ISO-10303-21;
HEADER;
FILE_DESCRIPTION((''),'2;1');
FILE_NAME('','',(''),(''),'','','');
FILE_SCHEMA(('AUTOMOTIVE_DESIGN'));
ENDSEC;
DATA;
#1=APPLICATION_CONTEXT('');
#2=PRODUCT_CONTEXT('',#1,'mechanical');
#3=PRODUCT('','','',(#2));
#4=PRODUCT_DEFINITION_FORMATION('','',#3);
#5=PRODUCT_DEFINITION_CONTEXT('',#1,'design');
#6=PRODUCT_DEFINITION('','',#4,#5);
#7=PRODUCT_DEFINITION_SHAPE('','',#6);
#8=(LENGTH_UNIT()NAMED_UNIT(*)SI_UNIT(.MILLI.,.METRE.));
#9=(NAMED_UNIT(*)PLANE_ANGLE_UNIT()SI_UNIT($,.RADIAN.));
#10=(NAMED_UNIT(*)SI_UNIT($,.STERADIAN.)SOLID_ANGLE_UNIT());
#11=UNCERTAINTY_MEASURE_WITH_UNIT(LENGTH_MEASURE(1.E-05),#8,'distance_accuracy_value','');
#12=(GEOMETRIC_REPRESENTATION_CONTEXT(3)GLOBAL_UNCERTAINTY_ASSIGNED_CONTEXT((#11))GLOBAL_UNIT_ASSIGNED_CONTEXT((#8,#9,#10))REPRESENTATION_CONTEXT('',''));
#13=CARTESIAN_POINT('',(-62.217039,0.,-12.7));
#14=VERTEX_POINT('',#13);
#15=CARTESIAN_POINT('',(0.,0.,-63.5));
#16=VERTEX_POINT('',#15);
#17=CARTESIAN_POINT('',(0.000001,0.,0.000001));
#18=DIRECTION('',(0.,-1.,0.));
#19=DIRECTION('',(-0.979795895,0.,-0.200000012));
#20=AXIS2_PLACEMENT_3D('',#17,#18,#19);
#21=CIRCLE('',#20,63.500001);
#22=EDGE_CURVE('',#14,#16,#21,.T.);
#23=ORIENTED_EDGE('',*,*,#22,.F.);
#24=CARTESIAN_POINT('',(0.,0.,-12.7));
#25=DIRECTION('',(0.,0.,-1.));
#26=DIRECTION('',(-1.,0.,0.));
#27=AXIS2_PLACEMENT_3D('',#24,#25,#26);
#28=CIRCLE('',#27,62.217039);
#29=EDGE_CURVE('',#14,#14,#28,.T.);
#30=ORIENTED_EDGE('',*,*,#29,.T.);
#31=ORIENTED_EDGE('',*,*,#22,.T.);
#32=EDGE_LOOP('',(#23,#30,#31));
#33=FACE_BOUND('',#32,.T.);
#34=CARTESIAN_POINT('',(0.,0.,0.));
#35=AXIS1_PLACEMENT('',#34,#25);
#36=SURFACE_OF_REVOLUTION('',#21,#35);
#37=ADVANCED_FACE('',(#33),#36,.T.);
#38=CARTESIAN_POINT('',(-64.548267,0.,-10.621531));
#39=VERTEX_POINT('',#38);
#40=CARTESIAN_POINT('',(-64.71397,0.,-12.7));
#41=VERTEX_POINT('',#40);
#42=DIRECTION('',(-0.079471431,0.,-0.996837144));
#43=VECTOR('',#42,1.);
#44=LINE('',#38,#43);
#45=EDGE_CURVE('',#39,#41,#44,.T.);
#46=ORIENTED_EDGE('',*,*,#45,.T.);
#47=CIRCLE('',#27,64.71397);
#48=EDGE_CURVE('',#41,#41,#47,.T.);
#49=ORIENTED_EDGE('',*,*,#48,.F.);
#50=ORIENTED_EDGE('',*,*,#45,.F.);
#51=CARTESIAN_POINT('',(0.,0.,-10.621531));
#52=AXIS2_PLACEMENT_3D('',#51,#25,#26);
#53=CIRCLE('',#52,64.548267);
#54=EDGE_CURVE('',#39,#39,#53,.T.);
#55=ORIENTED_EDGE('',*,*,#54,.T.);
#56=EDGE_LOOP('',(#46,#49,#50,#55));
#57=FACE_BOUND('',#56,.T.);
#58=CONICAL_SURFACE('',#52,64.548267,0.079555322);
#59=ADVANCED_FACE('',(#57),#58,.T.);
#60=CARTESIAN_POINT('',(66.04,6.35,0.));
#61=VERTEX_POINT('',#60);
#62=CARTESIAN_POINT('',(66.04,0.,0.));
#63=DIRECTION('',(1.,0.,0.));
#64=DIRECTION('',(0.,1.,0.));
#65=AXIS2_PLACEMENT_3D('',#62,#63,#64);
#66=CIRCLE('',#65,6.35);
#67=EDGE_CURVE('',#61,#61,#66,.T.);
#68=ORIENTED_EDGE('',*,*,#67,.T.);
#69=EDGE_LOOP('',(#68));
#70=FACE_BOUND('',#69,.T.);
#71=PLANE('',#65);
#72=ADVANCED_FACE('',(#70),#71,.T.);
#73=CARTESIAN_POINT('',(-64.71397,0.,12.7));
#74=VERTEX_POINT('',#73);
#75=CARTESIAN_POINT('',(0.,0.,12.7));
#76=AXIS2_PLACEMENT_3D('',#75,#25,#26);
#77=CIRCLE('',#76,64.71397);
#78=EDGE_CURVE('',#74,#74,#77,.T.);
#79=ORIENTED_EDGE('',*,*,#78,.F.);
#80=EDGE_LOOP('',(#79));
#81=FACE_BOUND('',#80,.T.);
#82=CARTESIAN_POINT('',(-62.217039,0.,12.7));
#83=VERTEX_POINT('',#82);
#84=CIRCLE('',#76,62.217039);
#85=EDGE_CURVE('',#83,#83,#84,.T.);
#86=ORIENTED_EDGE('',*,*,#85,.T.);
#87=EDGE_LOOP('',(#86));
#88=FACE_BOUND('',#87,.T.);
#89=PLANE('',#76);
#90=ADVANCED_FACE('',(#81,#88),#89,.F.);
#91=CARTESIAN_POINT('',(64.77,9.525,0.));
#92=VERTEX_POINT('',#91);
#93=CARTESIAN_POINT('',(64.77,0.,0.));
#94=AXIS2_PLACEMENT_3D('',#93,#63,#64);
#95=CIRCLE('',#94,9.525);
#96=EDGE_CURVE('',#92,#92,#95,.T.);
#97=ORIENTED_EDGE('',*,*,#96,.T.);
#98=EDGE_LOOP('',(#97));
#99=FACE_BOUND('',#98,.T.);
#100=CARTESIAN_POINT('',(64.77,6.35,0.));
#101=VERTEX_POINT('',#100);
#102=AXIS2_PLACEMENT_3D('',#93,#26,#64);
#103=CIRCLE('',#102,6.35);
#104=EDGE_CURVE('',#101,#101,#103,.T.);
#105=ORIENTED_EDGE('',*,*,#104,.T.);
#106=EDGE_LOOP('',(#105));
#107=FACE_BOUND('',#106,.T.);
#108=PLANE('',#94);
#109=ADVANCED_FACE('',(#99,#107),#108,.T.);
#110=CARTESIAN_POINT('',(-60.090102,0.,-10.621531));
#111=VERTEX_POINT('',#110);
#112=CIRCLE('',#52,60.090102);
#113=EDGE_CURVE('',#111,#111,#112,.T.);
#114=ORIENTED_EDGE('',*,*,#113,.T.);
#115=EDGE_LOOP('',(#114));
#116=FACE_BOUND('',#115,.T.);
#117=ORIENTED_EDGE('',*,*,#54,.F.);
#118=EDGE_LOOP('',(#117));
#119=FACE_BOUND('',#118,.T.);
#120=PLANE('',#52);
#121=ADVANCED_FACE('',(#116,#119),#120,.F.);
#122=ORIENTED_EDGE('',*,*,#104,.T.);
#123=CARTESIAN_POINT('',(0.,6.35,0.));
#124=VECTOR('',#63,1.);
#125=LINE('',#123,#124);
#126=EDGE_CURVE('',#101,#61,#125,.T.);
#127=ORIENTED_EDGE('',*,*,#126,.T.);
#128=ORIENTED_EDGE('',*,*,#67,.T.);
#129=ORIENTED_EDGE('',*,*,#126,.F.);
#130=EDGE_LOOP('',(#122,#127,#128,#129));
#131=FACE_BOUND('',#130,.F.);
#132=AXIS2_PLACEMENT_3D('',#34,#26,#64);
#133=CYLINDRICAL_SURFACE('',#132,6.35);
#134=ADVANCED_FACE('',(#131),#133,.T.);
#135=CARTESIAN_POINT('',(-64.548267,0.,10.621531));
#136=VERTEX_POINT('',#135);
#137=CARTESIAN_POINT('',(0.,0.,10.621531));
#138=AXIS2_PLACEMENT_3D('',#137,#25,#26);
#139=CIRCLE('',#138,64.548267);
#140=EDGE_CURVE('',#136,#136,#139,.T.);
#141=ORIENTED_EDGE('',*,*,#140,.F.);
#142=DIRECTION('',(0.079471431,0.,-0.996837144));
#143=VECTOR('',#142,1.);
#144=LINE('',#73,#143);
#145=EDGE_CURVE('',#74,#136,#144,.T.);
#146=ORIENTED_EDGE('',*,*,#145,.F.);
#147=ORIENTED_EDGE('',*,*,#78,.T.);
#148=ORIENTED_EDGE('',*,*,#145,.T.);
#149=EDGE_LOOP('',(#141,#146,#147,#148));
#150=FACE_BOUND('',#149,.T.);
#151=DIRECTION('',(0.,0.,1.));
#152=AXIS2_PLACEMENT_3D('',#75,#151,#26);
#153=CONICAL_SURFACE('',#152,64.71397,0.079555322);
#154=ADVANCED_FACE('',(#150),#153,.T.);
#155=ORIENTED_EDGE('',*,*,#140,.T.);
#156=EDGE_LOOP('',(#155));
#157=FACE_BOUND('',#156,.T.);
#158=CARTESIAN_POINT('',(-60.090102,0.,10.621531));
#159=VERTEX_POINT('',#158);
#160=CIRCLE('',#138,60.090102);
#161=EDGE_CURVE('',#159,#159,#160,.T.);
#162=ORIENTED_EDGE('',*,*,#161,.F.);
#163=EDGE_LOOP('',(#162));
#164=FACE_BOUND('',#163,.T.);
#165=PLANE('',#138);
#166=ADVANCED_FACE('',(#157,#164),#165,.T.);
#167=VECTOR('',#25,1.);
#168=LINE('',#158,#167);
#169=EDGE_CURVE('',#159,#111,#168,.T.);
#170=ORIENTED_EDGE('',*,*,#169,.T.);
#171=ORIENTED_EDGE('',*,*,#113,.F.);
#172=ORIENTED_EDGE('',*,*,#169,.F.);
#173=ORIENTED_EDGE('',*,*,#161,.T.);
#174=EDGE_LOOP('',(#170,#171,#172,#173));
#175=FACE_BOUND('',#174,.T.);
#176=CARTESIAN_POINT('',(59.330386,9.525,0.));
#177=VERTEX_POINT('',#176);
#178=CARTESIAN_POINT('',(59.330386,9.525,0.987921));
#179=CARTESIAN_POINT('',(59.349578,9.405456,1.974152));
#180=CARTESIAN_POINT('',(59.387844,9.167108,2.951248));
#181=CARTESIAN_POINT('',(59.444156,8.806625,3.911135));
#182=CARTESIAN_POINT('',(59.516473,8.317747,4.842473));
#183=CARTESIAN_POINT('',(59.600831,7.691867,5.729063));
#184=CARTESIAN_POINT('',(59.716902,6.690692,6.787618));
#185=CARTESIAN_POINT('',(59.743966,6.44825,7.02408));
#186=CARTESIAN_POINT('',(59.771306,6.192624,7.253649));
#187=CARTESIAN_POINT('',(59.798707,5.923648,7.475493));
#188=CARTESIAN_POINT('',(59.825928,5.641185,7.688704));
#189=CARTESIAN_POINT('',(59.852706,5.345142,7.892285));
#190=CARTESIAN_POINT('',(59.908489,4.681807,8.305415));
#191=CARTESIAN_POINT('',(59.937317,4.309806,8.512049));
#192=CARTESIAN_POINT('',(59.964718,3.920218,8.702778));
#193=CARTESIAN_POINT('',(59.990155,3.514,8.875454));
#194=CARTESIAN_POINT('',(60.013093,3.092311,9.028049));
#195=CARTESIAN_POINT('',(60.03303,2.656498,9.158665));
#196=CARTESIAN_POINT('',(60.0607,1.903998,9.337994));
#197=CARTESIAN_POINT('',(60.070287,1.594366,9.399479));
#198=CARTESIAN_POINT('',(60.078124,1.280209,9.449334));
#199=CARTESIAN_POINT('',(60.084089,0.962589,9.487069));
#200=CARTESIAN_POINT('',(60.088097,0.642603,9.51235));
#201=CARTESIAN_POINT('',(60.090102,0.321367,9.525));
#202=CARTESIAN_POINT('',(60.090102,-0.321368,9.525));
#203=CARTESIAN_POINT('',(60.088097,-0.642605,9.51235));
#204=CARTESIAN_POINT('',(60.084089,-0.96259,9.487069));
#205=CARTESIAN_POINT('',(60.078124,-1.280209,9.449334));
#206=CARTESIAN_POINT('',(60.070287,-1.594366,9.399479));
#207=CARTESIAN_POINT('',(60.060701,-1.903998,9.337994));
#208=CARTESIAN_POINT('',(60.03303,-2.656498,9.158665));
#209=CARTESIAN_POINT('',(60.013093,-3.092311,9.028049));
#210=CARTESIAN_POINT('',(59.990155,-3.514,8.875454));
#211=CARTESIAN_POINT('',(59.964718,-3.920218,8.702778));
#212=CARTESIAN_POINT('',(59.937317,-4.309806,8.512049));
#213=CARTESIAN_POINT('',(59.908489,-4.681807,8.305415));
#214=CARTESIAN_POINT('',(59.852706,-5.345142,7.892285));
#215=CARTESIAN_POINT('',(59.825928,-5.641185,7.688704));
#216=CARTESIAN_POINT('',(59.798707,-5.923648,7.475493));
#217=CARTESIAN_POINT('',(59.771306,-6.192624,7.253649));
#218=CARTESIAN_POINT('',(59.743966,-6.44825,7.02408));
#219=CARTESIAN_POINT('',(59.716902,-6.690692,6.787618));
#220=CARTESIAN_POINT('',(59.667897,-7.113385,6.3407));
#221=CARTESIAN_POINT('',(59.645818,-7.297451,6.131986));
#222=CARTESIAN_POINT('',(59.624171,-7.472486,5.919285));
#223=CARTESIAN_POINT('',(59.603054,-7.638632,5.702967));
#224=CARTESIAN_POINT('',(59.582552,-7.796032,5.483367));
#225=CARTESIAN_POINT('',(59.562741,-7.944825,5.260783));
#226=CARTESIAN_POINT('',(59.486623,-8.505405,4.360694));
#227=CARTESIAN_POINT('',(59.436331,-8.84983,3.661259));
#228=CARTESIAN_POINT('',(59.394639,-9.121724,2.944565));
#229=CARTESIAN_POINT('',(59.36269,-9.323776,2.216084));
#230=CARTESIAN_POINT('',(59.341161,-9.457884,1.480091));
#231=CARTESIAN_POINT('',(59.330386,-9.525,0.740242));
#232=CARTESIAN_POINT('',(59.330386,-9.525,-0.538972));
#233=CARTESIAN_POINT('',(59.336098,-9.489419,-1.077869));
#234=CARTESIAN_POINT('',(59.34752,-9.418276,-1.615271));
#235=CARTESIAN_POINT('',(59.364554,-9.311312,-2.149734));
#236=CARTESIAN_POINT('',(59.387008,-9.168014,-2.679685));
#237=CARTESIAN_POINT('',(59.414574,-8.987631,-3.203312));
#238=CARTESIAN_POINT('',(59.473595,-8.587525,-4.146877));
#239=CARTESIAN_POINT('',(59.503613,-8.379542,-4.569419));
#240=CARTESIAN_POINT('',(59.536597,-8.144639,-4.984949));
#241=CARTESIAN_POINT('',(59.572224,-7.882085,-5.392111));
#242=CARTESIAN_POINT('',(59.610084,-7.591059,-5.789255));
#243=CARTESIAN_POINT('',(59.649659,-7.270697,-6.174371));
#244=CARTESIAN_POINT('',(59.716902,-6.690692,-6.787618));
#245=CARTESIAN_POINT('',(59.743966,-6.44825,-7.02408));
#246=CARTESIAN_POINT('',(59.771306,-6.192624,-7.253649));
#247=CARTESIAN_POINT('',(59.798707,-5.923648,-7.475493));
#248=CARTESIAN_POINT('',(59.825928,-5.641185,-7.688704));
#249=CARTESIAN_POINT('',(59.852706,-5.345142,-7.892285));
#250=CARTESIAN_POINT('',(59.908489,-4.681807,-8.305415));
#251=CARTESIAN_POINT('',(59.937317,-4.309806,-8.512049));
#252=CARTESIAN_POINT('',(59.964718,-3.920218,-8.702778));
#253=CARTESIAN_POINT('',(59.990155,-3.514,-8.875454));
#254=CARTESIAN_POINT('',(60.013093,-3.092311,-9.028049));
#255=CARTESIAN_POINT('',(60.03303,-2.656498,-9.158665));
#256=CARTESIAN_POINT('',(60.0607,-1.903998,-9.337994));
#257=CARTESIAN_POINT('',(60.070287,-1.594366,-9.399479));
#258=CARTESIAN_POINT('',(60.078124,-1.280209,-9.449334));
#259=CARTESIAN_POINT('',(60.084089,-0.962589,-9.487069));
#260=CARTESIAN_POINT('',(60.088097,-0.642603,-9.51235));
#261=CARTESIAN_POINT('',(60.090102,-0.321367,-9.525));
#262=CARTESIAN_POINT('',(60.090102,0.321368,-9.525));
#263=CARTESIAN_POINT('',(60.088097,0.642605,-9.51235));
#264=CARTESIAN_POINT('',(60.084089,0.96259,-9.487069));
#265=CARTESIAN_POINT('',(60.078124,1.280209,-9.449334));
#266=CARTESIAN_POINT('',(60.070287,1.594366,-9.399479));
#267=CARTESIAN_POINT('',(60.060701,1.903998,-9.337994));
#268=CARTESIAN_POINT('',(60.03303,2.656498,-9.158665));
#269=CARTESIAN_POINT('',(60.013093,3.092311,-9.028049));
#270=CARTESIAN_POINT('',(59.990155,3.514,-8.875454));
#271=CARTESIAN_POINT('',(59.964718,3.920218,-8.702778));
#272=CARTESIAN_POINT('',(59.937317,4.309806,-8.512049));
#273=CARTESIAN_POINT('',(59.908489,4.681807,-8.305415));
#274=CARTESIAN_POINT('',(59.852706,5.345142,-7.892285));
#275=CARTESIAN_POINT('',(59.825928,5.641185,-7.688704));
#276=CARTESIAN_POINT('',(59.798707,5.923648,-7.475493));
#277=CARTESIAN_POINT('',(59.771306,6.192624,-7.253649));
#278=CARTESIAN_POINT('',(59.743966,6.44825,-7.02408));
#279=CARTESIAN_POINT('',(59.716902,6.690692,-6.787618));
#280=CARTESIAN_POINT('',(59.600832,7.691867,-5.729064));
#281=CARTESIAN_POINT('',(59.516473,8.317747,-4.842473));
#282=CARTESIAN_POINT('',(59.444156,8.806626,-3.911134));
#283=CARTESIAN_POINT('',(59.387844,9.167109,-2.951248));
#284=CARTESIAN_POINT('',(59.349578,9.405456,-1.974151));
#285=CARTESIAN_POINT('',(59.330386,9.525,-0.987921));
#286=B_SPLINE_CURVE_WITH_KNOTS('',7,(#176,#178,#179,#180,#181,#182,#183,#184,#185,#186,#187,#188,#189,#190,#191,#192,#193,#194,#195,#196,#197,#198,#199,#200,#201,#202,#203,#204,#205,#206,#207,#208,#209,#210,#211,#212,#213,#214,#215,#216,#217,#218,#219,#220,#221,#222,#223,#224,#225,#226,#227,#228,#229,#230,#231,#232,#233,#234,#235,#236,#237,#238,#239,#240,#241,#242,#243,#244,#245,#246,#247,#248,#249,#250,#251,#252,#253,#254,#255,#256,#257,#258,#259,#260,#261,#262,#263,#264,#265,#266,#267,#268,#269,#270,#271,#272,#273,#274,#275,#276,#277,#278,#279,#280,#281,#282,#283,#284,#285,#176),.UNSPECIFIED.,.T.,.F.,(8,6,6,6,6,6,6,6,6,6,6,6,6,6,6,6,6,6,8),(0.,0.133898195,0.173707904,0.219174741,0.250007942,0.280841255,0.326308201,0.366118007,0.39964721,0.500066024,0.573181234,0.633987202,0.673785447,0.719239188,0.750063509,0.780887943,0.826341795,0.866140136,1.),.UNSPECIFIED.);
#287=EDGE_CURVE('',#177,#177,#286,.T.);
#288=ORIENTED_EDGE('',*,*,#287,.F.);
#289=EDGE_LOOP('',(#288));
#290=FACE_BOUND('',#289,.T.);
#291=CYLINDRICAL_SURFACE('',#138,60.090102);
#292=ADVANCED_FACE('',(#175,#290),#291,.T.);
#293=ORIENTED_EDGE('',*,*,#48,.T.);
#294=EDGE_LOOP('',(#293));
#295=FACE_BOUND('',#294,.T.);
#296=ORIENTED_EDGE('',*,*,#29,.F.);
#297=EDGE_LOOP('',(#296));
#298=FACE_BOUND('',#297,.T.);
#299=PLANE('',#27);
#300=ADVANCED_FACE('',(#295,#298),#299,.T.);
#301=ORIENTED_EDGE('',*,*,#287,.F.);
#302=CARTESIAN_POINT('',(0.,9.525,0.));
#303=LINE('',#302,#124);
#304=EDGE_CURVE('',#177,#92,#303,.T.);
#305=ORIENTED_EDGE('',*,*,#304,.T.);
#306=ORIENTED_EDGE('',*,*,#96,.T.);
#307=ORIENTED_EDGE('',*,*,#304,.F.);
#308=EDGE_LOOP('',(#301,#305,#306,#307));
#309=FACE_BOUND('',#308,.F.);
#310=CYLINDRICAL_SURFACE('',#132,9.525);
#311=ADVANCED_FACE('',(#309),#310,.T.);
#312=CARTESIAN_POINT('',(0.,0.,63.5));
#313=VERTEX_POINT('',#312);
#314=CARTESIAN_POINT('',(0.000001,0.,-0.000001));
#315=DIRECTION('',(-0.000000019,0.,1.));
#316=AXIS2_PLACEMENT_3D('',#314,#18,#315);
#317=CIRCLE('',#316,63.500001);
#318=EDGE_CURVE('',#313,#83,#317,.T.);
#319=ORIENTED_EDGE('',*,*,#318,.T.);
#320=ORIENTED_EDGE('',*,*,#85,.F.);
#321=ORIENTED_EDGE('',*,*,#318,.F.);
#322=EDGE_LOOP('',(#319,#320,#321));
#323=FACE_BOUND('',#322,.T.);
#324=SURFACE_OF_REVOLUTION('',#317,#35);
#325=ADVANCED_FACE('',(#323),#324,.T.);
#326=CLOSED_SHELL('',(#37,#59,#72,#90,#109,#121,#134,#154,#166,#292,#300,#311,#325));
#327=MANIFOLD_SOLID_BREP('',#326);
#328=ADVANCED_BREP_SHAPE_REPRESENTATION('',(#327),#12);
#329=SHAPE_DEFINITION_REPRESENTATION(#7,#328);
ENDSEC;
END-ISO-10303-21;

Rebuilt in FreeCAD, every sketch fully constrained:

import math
import FreeCAD as App
import Part
import Sketcher
Q = App.Units.Quantity

doc = App.newDocument("Part")
params = doc.addObject("Spreadsheet::Sheet", "Params")
for row, (alias, value) in enumerate([
    ("sketch1_diameter", "0.5 in"),
    ("pad1_length", "2.6 in"),
    ("sketch2_radius", "2.5 in"),
    ("revolution_angle", "360 deg"),
    ("sketch3_diameter", "0.75 in"),
    ("pad2_length", "2.55 in"),
], start=1):
    params.set(f"A{row}", alias)
    params.set(f"B{row}", "=" + value)
    params.setAlias(f"B{row}", alias)

body = doc.addObject("PartDesign::Body", "Body")

sketch1 = body.newObject("Sketcher::SketchObject", "Sketch")
sketch1.AttachmentSupport = (doc.getObject("YZ_Plane"), [""])
sketch1.MapMode = "FlatFace"
sketch1.addGeometry(Part.Circle(App.Vector(0, 0, 0), App.Vector(0, 0, 1), 6), False)
sketch1.addConstraint([
    Sketcher.Constraint("Coincident", 0, 3, -1, 1),
    Sketcher.Constraint("Diameter", 0, Q("0.5 in")),
])
sketch1.setExpression("Constraints[1]", "Params.sketch1_diameter")
pad1 = body.newObject("PartDesign::Pad", "Pad")
pad1.Profile = sketch1
pad1.setExpression("Length", "Params.pad1_length")

sketch2 = body.newObject("Sketcher::SketchObject", "Sketch001")
sketch2.AttachmentSupport = (doc.getObject("XZ_Plane"), [""])
sketch2.MapMode = "FlatFace"
sketch2.addGeometry([
    Part.ArcOfCircle(Part.Circle(App.Vector(0, 0, 0), App.Vector(0, 0, 1), 63.5), math.radians(90), math.radians(168)),
    Part.LineSegment(App.Vector(-62.2, 12.7, 0), App.Vector(-64.7, 12.7, 0)),
    Part.LineSegment(App.Vector(-64.7, 12.7, 0), App.Vector(-64.5, 10.6, 0)),
    Part.LineSegment(App.Vector(-64.5, 10.6, 0), App.Vector(-60.1, 10.6, 0)),
    Part.LineSegment(App.Vector(-60.1, 10.6, 0), App.Vector(-60.1, -10.6, 0)),
    Part.LineSegment(App.Vector(-60.1, -10.6, 0), App.Vector(-64.5, -10.6, 0)),
    Part.LineSegment(App.Vector(-64.5, -10.6, 0), App.Vector(-64.7, -12.7, 0)),
    Part.LineSegment(App.Vector(-64.7, -12.7, 0), App.Vector(-62.2, -12.7, 0)),
    Part.ArcOfCircle(Part.Circle(App.Vector(0, 0, 0), App.Vector(0, 0, 1), 63.5), math.radians(-168), math.radians(-90)),
    Part.LineSegment(App.Vector(0, -63.5, 0), App.Vector(0, 63.5, 0)),
], False)
sketch2.addConstraint([
    Sketcher.Constraint("Coincident", 0, 2, 1, 1),
    Sketcher.Constraint("Coincident", 1, 2, 2, 1),
    Sketcher.Constraint("Coincident", 2, 2, 3, 1),
    Sketcher.Constraint("Coincident", 3, 2, 4, 1),
    Sketcher.Constraint("Coincident", 4, 2, 5, 1),
    Sketcher.Constraint("Coincident", 5, 2, 6, 1),
    Sketcher.Constraint("Coincident", 6, 2, 7, 1),
    Sketcher.Constraint("Coincident", 7, 2, 8, 1),
    Sketcher.Constraint("Coincident", 8, 2, 9, 1),
    Sketcher.Constraint("Coincident", 9, 2, 0, 1),
    Sketcher.Constraint("Horizontal", 1),
    Sketcher.Constraint("Horizontal", 3),
    Sketcher.Constraint("Vertical", 4),
    Sketcher.Constraint("Horizontal", 5),
    Sketcher.Constraint("Horizontal", 7),
    Sketcher.Constraint("Vertical", 9),
    Sketcher.Constraint("Coincident", 0, 3, -1, 1),
    Sketcher.Constraint("Coincident", 8, 3, -1, 1),
    Sketcher.Constraint("Equal", 0, 8),
    Sketcher.Constraint("Symmetric", 2, 2, 5, 2, -1),
    Sketcher.Constraint("Symmetric", 1, 2, 6, 2, -1),
    Sketcher.Constraint("PointOnObject", 8, 2, -2),
    Sketcher.Constraint("Radius", 0, Q("2.5 in")),
    Sketcher.Constraint("DistanceY", 6, 2, 1, 2, Q("1 in")),
    Sketcher.Constraint("DistanceX", 1, 2, 1, 1, Q("2.496931 mm")),
    Sketcher.Constraint("DistanceY", 4, 2, 4, 1, Q("21.243062 mm")),
    Sketcher.Constraint("DistanceX", 4, 2, 8, 2, Q("60.090102 mm")),
    Sketcher.Constraint("DistanceX", 3, 1, 3, 2, Q("4.458165 mm")),
])
sketch2.setExpression("Constraints[22]", "Params.sketch2_radius")
revolution = body.newObject("PartDesign::Revolution", "Revolution")
revolution.Profile = sketch2
revolution.ReferenceAxis = (sketch2, ["V_Axis"])
revolution.setExpression("Angle", "Params.revolution_angle")

sketch3 = body.newObject("Sketcher::SketchObject", "Sketch002")
sketch3.AttachmentSupport = (doc.getObject("YZ_Plane"), [""])
sketch3.MapMode = "FlatFace"
sketch3.addGeometry(Part.Circle(App.Vector(0, 0, 0), App.Vector(0, 0, 1), 10), False)
sketch3.addConstraint([
    Sketcher.Constraint("Coincident", 0, 3, -1, 1),
    Sketcher.Constraint("Diameter", 0, Q("0.75 in")),
])
sketch3.setExpression("Constraints[1]", "Params.sketch3_diameter")
pad2 = body.newObject("PartDesign::Pad", "Pad001")
pad2.Profile = sketch3
pad2.setExpression("Length", "Params.pad2_length")

doc.recompute()
